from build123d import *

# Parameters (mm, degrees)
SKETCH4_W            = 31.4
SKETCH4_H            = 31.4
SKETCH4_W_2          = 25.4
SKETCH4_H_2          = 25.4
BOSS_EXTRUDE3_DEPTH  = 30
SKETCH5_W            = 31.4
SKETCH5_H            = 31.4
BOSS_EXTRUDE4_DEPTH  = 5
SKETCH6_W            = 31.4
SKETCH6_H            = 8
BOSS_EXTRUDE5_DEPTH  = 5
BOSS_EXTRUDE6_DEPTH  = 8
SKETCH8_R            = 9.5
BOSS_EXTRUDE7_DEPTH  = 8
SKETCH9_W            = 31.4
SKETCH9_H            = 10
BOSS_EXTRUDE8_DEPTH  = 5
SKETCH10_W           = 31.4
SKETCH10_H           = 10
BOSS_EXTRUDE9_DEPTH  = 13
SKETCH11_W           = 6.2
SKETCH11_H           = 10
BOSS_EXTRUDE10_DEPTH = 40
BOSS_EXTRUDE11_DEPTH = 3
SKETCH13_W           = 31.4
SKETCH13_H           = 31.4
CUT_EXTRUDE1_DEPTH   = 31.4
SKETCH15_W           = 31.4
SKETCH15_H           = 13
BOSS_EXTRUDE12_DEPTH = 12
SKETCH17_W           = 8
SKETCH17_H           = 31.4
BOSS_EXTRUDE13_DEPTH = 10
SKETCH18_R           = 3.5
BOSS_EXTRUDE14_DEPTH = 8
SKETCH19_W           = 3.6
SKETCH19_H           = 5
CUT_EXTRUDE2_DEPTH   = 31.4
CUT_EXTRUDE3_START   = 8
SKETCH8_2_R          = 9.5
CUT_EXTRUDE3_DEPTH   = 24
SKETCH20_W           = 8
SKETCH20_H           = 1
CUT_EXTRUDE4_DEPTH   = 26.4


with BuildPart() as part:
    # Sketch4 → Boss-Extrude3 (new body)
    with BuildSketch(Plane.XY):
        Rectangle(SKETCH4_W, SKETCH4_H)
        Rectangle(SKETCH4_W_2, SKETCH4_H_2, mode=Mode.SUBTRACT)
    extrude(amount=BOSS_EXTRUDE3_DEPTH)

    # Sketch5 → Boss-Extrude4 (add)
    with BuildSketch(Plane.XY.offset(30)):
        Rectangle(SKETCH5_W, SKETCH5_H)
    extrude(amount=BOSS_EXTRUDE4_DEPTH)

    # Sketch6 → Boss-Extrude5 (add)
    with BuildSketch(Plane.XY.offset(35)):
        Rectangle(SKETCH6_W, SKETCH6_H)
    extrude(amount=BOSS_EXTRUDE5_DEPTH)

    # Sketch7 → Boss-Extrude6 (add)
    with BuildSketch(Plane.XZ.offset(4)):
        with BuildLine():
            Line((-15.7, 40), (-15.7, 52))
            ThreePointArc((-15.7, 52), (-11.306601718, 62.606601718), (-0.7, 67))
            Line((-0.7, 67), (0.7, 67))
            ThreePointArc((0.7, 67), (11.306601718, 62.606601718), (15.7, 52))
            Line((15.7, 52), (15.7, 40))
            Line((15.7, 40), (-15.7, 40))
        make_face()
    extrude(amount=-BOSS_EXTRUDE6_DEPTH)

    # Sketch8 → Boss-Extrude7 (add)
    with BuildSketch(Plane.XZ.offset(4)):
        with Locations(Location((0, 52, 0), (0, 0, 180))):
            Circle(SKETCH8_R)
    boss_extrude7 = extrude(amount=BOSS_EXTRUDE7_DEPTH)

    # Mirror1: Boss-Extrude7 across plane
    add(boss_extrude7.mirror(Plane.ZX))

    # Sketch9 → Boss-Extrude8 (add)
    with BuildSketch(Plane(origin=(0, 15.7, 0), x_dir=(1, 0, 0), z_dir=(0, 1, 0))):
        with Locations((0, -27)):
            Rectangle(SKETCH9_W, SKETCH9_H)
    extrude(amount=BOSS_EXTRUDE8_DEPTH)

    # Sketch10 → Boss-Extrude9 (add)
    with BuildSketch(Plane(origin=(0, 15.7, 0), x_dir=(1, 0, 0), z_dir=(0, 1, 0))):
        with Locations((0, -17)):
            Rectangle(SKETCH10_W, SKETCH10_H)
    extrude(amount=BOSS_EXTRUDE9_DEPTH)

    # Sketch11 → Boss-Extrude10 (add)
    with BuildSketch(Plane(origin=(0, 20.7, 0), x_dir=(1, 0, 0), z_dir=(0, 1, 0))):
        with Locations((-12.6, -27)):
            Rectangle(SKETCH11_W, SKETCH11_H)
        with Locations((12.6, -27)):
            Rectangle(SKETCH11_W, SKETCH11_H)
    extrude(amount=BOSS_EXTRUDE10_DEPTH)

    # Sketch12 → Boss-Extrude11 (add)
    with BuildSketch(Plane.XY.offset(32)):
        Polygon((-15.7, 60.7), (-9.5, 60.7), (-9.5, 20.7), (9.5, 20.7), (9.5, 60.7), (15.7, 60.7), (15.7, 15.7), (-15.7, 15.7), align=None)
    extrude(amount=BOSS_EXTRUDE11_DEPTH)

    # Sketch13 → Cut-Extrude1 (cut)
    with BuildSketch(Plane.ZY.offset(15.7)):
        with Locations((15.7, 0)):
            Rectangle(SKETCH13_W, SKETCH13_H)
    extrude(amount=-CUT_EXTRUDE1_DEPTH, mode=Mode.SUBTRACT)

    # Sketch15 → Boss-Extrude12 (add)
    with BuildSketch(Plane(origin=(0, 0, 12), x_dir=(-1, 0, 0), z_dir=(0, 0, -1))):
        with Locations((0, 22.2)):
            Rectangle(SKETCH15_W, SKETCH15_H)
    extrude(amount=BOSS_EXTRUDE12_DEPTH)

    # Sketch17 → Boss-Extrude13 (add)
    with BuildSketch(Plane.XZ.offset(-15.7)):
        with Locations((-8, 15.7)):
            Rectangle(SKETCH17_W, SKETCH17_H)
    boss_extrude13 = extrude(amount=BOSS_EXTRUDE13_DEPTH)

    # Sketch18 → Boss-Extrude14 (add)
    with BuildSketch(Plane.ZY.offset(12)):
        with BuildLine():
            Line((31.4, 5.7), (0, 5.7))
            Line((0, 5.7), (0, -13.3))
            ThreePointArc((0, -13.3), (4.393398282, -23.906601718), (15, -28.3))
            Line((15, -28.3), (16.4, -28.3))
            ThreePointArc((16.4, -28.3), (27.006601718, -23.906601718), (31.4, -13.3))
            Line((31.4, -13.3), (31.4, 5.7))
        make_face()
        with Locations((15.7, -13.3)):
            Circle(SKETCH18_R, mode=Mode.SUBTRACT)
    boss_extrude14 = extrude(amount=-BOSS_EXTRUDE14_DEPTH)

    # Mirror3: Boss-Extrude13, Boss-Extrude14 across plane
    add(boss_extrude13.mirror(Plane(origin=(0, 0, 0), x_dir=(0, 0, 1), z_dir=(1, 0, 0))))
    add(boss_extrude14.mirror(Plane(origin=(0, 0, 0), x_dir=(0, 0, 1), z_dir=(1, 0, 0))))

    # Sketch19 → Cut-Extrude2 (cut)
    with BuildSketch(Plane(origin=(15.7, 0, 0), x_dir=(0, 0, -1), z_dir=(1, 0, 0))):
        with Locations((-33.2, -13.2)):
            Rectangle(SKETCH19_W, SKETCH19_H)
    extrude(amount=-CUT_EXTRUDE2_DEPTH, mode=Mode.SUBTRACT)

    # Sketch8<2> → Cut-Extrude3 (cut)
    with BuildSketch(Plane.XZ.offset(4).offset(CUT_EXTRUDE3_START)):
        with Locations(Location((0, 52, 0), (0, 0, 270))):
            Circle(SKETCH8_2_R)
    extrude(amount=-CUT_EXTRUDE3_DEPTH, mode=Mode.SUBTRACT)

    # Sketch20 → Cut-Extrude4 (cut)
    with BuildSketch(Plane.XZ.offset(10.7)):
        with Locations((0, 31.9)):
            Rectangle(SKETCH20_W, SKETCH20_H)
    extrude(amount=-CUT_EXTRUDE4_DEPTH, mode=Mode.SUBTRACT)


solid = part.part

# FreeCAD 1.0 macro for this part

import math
import FreeCAD as App
import Part
import Sketcher

V = App.Vector


def add_polygon(sketch, points):
    """Adds a closed chain of lines whose ends are joined by coincident constraints."""
    first, n = sketch.GeometryCount, len(points)
    for a, b in zip(points, points[1:] + points[:1]):
        sketch.addGeometry(Part.LineSegment(App.Vector(*a, 0), App.Vector(*b, 0)), False)
    for i in range(n):
        sketch.addConstraint(Sketcher.Constraint("Coincident", first + i, 2, first + (i + 1) % n, 1))

doc = App.newDocument("Part")
body = doc.addObject("PartDesign::Body", "Body")

# Sketch on XY plane
sketch1 = body.newObject("Sketcher::SketchObject", "Sketch")
sketch1.AttachmentSupport = (doc.getObject("XY_Plane"), [""])
sketch1.MapMode = "FlatFace"
add_polygon(sketch1, [(-15.7, 15.7), (-15.7, -15.7), (15.7, -15.7), (15.7, 15.7)])  # lines 0-3
add_polygon(sketch1, [(12.7, -12.7), (-12.7, -12.7), (-12.7, 12.7), (12.7, 12.7)])  # lines 4-7
sketch1.addConstraint(Sketcher.Constraint("Vertical", 0))
sketch1.addConstraint(Sketcher.Constraint("Horizontal", 1))
sketch1.addConstraint(Sketcher.Constraint("Vertical", 2))
sketch1.addConstraint(Sketcher.Constraint("Horizontal", 3))
sketch1.addConstraint(Sketcher.Constraint("Horizontal", 4))
sketch1.addConstraint(Sketcher.Constraint("Vertical", 5))
sketch1.addConstraint(Sketcher.Constraint("Horizontal", 6))
sketch1.addConstraint(Sketcher.Constraint("Vertical", 7))
sketch1.addConstraint(Sketcher.Constraint("Symmetric", 0, 2, 2, 2, -1, 1))
sketch1.addConstraint(Sketcher.Constraint("Symmetric", 4, 2, 6, 2, -1, 1))
sketch1.addConstraint(Sketcher.Constraint("Equal", 3, 0))
sketch1.addConstraint(Sketcher.Constraint("Equal", 6, 5))
sketch1.addConstraint(Sketcher.Constraint("DistanceX", 1, 1, 1, 2, 31.4))
sketch1.addConstraint(Sketcher.Constraint("DistanceX", 4, 2, 4, 1, 25.4))
pad1 = body.newObject("PartDesign::Pad", "Pad")
pad1.Profile = sketch1
pad1.Length = 30

# Sketch on XY plane
sketch2 = body.newObject("Sketcher::SketchObject", "Sketch001")
sketch2.AttachmentSupport = (doc.getObject("XY_Plane"), [""])
sketch2.MapMode = "FlatFace"
sketch2.AttachmentOffset = App.Placement(V(0, 0, 30), App.Rotation())
add_polygon(sketch2, [(-15.7, 15.7), (-15.7, -15.7), (15.7, -15.7), (15.7, 15.7)])  # lines 0-3
sketch2.addConstraint(Sketcher.Constraint("Vertical", 0))
sketch2.addConstraint(Sketcher.Constraint("Horizontal", 1))
sketch2.addConstraint(Sketcher.Constraint("Vertical", 2))
sketch2.addConstraint(Sketcher.Constraint("Horizontal", 3))
sketch2.addConstraint(Sketcher.Constraint("Symmetric", 0, 2, 2, 2, -1, 1))
sketch2.addConstraint(Sketcher.Constraint("Equal", 3, 0))
sketch2.addConstraint(Sketcher.Constraint("DistanceX", 1, 1, 1, 2, 31.4))
pad2 = body.newObject("PartDesign::Pad", "Pad001")
pad2.Profile = sketch2
pad2.Length = 5

# Sketch on XY plane
sketch3 = body.newObject("Sketcher::SketchObject", "Sketch002")
sketch3.AttachmentSupport = (doc.getObject("XY_Plane"), [""])
sketch3.MapMode = "FlatFace"
sketch3.AttachmentOffset = App.Placement(V(0, 0, 35), App.Rotation())
add_polygon(sketch3, [(-15.7, 4), (-15.7, -4), (15.7, -4), (15.7, 4)])  # lines 0-3
sketch3.addConstraint(Sketcher.Constraint("Vertical", 0))
sketch3.addConstraint(Sketcher.Constraint("Horizontal", 1))
sketch3.addConstraint(Sketcher.Constraint("Vertical", 2))
sketch3.addConstraint(Sketcher.Constraint("Horizontal", 3))
sketch3.addConstraint(Sketcher.Constraint("Symmetric", 0, 2, 2, 2, -1, 1))
sketch3.addConstraint(Sketcher.Constraint("DistanceY", 0, 2, 0, 1, 8.0))
sketch3.addConstraint(Sketcher.Constraint("DistanceX", 1, 1, 1, 2, 31.4))
pad3 = body.newObject("PartDesign::Pad", "Pad002")
pad3.Profile = sketch3
pad3.Length = 5

# Sketch on XZ plane
sketch4 = body.newObject("Sketcher::SketchObject", "Sketch003")
sketch4.AttachmentSupport = (doc.getObject("XZ_Plane"), [""])
sketch4.MapMode = "FlatFace"
sketch4.AttachmentOffset = App.Placement(V(0, 0, 4), App.Rotation())
sketch4.addGeometry(Part.LineSegment(V(-15.7, 52, 0), V(-15.7, 40, 0)), False)
sketch4.addGeometry(Part.LineSegment(V(-15.7, 40, 0), V(15.7, 40, 0)), False)
sketch4.addGeometry(Part.LineSegment(V(15.7, 40, 0), V(15.7, 52, 0)), False)
sketch4.addGeometry(Part.ArcOfCircle(Part.Circle(V(0.7, 52, 0), V(0, 0, 1), 15), math.radians(0), math.radians(90)), False)
sketch4.addGeometry(Part.LineSegment(V(0.7, 67, 0), V(-0.7, 67, 0)), False)
sketch4.addGeometry(Part.ArcOfCircle(Part.Circle(V(-0.7, 52, 0), V(0, 0, 1), 15), math.radians(90), math.radians(180)), False)
sketch4.addConstraint(Sketcher.Constraint("Coincident", 0, 2, 1, 1))
sketch4.addConstraint(Sketcher.Constraint("Coincident", 1, 2, 2, 1))
sketch4.addConstraint(Sketcher.Constraint("Tangent", 2, 2, 3, 1))
sketch4.addConstraint(Sketcher.Constraint("Tangent", 3, 2, 4, 1))
sketch4.addConstraint(Sketcher.Constraint("Tangent", 4, 2, 5, 1))
sketch4.addConstraint(Sketcher.Constraint("Tangent", 5, 2, 0, 1))
sketch4.addConstraint(Sketcher.Constraint("Vertical", 0))
sketch4.addConstraint(Sketcher.Constraint("Horizontal", 1))
sketch4.addConstraint(Sketcher.Constraint("Vertical", 2))
sketch4.addConstraint(Sketcher.Constraint("Horizontal", 4))
sketch4.addConstraint(Sketcher.Constraint("Equal", 3, 5))
sketch4.addConstraint(Sketcher.Constraint("Radius", 3, 15.0))
sketch4.addConstraint(Sketcher.Constraint("DistanceY", 0, 2, 0, 1, 12.0))
sketch4.addConstraint(Sketcher.Constraint("DistanceX", 1, 1, 1, 2, 31.4))
sketch4.addConstraint(Sketcher.Constraint("DistanceY", -1, 1, 3, 3, 52.0))
sketch4.addConstraint(Sketcher.Constraint("DistanceX", -1, 1, 3, 3, 0.7))
pad4 = body.newObject("PartDesign::Pad", "Pad003")
pad4.Profile = sketch4
pad4.Length = 8
pad4.Reversed = True

# Sketch on XZ plane
sketch5 = body.newObject("Sketcher::SketchObject", "Sketch004")
sketch5.AttachmentSupport = (doc.getObject("XZ_Plane"), [""])
sketch5.MapMode = "FlatFace"
sketch5.AttachmentOffset = App.Placement(V(0, 0, 4), App.Rotation())
sketch5.addGeometry(Part.Circle(V(0, 52, 0), V(0, 0, 1), 9.5), False)
sketch5.addConstraint(Sketcher.Constraint("PointOnObject", 0, 3, -2))
sketch5.addConstraint(Sketcher.Constraint("Diameter", 0, 19.0))
sketch5.addConstraint(Sketcher.Constraint("DistanceY", -1, 1, 0, 3, 52.0))
pad5 = body.newObject("PartDesign::Pad", "Pad004")
pad5.Profile = sketch5
pad5.Length = 8
doc.recompute()

mirrored = body.newObject("PartDesign::Mirrored", "Mirrored")
mirrored.Originals = [pad5]
mirrored.MirrorPlane = (doc.getObject("XZ_Plane"), [""])
body.Tip = mirrored

# Sketch on XZ plane
sketch6 = body.newObject("Sketcher::SketchObject", "Sketch005")
sketch6.AttachmentSupport = (doc.getObject("XZ_Plane"), [""])
sketch6.MapMode = "FlatFace"
sketch6.AttachmentOffset = App.Placement(V(0, 0, -15.7), App.Rotation())
add_polygon(sketch6, [(-15.7, 22), (-15.7, 32), (15.7, 32), (15.7, 22)])  # lines 0-3
sketch6.addConstraint(Sketcher.Constraint("Vertical", 0))
sketch6.addConstraint(Sketcher.Constraint("Horizontal", 1))
sketch6.addConstraint(Sketcher.Constraint("Vertical", 2))
sketch6.addConstraint(Sketcher.Constraint("Horizontal", 3))
sketch6.addConstraint(Sketcher.Constraint("DistanceY", 0, 1, 0, 2, 10.0))
sketch6.addConstraint(Sketcher.Constraint("DistanceX", 1, 1, 1, 2, 31.4))
sketch6.addConstraint(Sketcher.Constraint("DistanceY", -1, 1, 0, 2, 32.0))
sketch6.addConstraint(Sketcher.Constraint("DistanceX", 0, 2, -1, 1, 15.7))
pad6 = body.newObject("PartDesign::Pad", "Pad005")
pad6.Profile = sketch6
pad6.Length = 5
pad6.Reversed = True

# Sketch on XZ plane
sketch7 = body.newObject("Sketcher::SketchObject", "Sketch006")
sketch7.AttachmentSupport = (doc.getObject("XZ_Plane"), [""])
sketch7.MapMode = "FlatFace"
sketch7.AttachmentOffset = App.Placement(V(0, 0, -15.7), App.Rotation())
add_polygon(sketch7, [(-15.7, 12), (-15.7, 22), (15.7, 22), (15.7, 12)])  # lines 0-3
sketch7.addConstraint(Sketcher.Constraint("Vertical", 0))
sketch7.addConstraint(Sketcher.Constraint("Horizontal", 1))
sketch7.addConstraint(Sketcher.Constraint("Vertical", 2))
sketch7.addConstraint(Sketcher.Constraint("Horizontal", 3))
sketch7.addConstraint(Sketcher.Constraint("DistanceY", 0, 1, 0, 2, 10.0))
sketch7.addConstraint(Sketcher.Constraint("DistanceX", 1, 1, 1, 2, 31.4))
sketch7.addConstraint(Sketcher.Constraint("DistanceY", -1, 1, 0, 2, 22.0))
sketch7.addConstraint(Sketcher.Constraint("DistanceX", 0, 2, -1, 1, 15.7))
pad7 = body.newObject("PartDesign::Pad", "Pad006")
pad7.Profile = sketch7
pad7.Length = 13
pad7.Reversed = True

# Sketch on XZ plane
sketch8 = body.newObject("Sketcher::SketchObject", "Sketch007")
sketch8.AttachmentSupport = (doc.getObject("XZ_Plane"), [""])
sketch8.MapMode = "FlatFace"
sketch8.AttachmentOffset = App.Placement(V(0, 0, -20.7), App.Rotation())
add_polygon(sketch8, [(-15.7, 22), (-15.7, 32), (-9.5, 32), (-9.5, 22)])  # lines 0-3
add_polygon(sketch8, [(9.5, 22), (9.5, 32), (15.7, 32), (15.7, 22)])  # lines 4-7
sketch8.addConstraint(Sketcher.Constraint("Vertical", 0))
sketch8.addConstraint(Sketcher.Constraint("Horizontal", 1))
sketch8.addConstraint(Sketcher.Constraint("Vertical", 2))
sketch8.addConstraint(Sketcher.Constraint("Horizontal", 3))
sketch8.addConstraint(Sketcher.Constraint("Vertical", 4))
sketch8.addConstraint(Sketcher.Constraint("Horizontal", 5))
sketch8.addConstraint(Sketcher.Constraint("Vertical", 6))
sketch8.addConstraint(Sketcher.Constraint("Horizontal", 7))
sketch8.addConstraint(Sketcher.Constraint("Symmetric", 1, 2, 4, 2, -2))
sketch8.addConstraint(Sketcher.Constraint("Symmetric", 3, 2, 6, 2, -2))
sketch8.addConstraint(Sketcher.Constraint("DistanceY", 0, 1, 0, 2, 10.0))
sketch8.addConstraint(Sketcher.Constraint("DistanceX", 1, 1, 1, 2, 6.2))
sketch8.addConstraint(Sketcher.Constraint("DistanceY", -1, 1, 0, 2, 32.0))
sketch8.addConstraint(Sketcher.Constraint("DistanceX", 1, 2, 4, 2, 19.0))
pad8 = body.newObject("PartDesign::Pad", "Pad007")
pad8.Profile = sketch8
pad8.Length = 40
pad8.Reversed = True

# Sketch on XY plane
sketch9 = body.newObject("Sketcher::SketchObject", "Sketch008")
sketch9.AttachmentSupport = (doc.getObject("XY_Plane"), [""])
sketch9.MapMode = "FlatFace"
sketch9.AttachmentOffset = App.Placement(V(0, 0, 32), App.Rotation())
add_polygon(sketch9, [(-9.5, 60.7), (-15.7, 60.7), (-15.7, 15.7), (15.7, 15.7), (15.7, 60.7), (9.5, 60.7), (9.5, 20.7), (-9.5, 20.7)])  # lines 0-7
sketch9.addConstraint(Sketcher.Constraint("Horizontal", 0))
sketch9.addConstraint(Sketcher.Constraint("Vertical", 1))
sketch9.addConstraint(Sketcher.Constraint("Horizontal", 2))
sketch9.addConstraint(Sketcher.Constraint("Vertical", 3))
sketch9.addConstraint(Sketcher.Constraint("Horizontal", 4))
sketch9.addConstraint(Sketcher.Constraint("Vertical", 5))
sketch9.addConstraint(Sketcher.Constraint("Horizontal", 6))
sketch9.addConstraint(Sketcher.Constraint("Vertical", 7))
sketch9.addConstraint(Sketcher.Constraint("Symmetric", 0, 2, 3, 2, -2))
sketch9.addConstraint(Sketcher.Constraint("Equal", 0, 4))
sketch9.addConstraint(Sketcher.Constraint("DistanceX", 6, 2, 6, 1, 19.0))
sketch9.addConstraint(Sketcher.Constraint("DistanceY", 1, 2, 1, 1, 45.0))
sketch9.addConstraint(Sketcher.Constraint("DistanceY", 5, 2, 5, 1, 40.0))
sketch9.addConstraint(Sketcher.Constraint("DistanceX", 0, 2, 0, 1, 6.2))
sketch9.addConstraint(Sketcher.Constraint("DistanceY", -1, 1, 0, 2, 60.7))
pad9 = body.newObject("PartDesign::Pad", "Pad008")
pad9.Profile = sketch9
pad9.Length = 3

# Sketch on YZ plane
sketch10 = body.newObject("Sketcher::SketchObject", "Sketch009")
sketch10.AttachmentSupport = (doc.getObject("YZ_Plane"), [""])
sketch10.MapMode = "FlatFace"
sketch10.AttachmentOffset = App.Placement(V(0, 0, -15.7), App.Rotation())
add_polygon(sketch10, [(15.7, 0), (-15.7, 0), (-15.7, 31.4), (15.7, 31.4)])  # lines 0-3
sketch10.addConstraint(Sketcher.Constraint("Horizontal", 0))
sketch10.addConstraint(Sketcher.Constraint("Vertical", 1))
sketch10.addConstraint(Sketcher.Constraint("Horizontal", 2))
sketch10.addConstraint(Sketcher.Constraint("Vertical", 3))
sketch10.addConstraint(Sketcher.Constraint("Symmetric", 0, 2, 3, 2, -1, 1))
sketch10.addConstraint(Sketcher.Constraint("Equal", 2, 1))
sketch10.addConstraint(Sketcher.Constraint("DistanceX", 0, 2, 0, 1, 31.4))
pocket1 = body.newObject("PartDesign::Pocket", "Pocket")
pocket1.Profile = sketch10
pocket1.Length = 31.4
pocket1.Reversed = True

# Sketch on XY plane
sketch11 = body.newObject("Sketcher::SketchObject", "Sketch010")
sketch11.AttachmentSupport = (doc.getObject("XY_Plane"), [""])
sketch11.MapMode = "FlatFace"
sketch11.AttachmentOffset = App.Placement(V(0, 0, 12), App.Rotation())
add_polygon(sketch11, [(15.7, 28.7), (15.7, 15.7), (-15.7, 15.7), (-15.7, 28.7)])  # lines 0-3
sketch11.addConstraint(Sketcher.Constraint("Vertical", 0))
sketch11.addConstraint(Sketcher.Constraint("Horizontal", 1))
sketch11.addConstraint(Sketcher.Constraint("Vertical", 2))
sketch11.addConstraint(Sketcher.Constraint("Horizontal", 3))
sketch11.addConstraint(Sketcher.Constraint("DistanceY", 0, 2, 0, 1, 13.0))
sketch11.addConstraint(Sketcher.Constraint("DistanceX", 1, 2, 1, 1, 31.4))
sketch11.addConstraint(Sketcher.Constraint("DistanceX", -1, 1, 0, 2, 15.7))
sketch11.addConstraint(Sketcher.Constraint("DistanceY", -1, 1, 0, 2, 15.7))
pad10 = body.newObject("PartDesign::Pad", "Pad009")
pad10.Profile = sketch11
pad10.Length = 12
pad10.Reversed = True

# Sketch on XZ plane
sketch12 = body.newObject("Sketcher::SketchObject", "Sketch011")
sketch12.AttachmentSupport = (doc.getObject("XZ_Plane"), [""])
sketch12.MapMode = "FlatFace"
sketch12.AttachmentOffset = App.Placement(V(0, 0, -15.7), App.Rotation())
add_polygon(sketch12, [(-12, 31.4), (-12, 0), (-4, 0), (-4, 31.4)])  # lines 0-3
sketch12.addConstraint(Sketcher.Constraint("Vertical", 0))
sketch12.addConstraint(Sketcher.Constraint("Horizontal", 1))
sketch12.addConstraint(Sketcher.Constraint("Vertical", 2))
sketch12.addConstraint(Sketcher.Constraint("Horizontal", 3))
sketch12.addConstraint(Sketcher.Constraint("PointOnObject", 0, 2, -1))
sketch12.addConstraint(Sketcher.Constraint("DistanceX", 1, 1, 1, 2, 8.0))
sketch12.addConstraint(Sketcher.Constraint("DistanceY", 0, 2, 0, 1, 31.4))
sketch12.addConstraint(Sketcher.Constraint("DistanceX", 0, 2, -1, 1, 12.0))
pad11 = body.newObject("PartDesign::Pad", "Pad010")
pad11.Profile = sketch12
pad11.Length = 10

# Sketch on YZ plane
sketch13 = body.newObject("Sketcher::SketchObject", "Sketch012")
sketch13.AttachmentSupport = (doc.getObject("YZ_Plane"), [""])
sketch13.MapMode = "FlatFace"
sketch13.AttachmentOffset = App.Placement(V(0, 0, -12), App.Rotation())
sketch13.addGeometry(Part.LineSegment(V(5.7, 31.4, 0), V(5.7, 0, 0)), False)
sketch13.addGeometry(Part.LineSegment(V(5.7, 0, 0), V(-13.3, 0, 0)), False)
sketch13.addGeometry(Part.ArcOfCircle(Part.Circle(V(-13.3, 15, 0), V(0, 0, 1), 15), math.radians(180), math.radians(270)), False)
sketch13.addGeometry(Part.LineSegment(V(-28.3, 15, 0), V(-28.3, 16.4, 0)), False)
sketch13.addGeometry(Part.ArcOfCircle(Part.Circle(V(-13.3, 16.4, 0), V(0, 0, 1), 15), math.radians(90), math.radians(180)), False)
sketch13.addGeometry(Part.LineSegment(V(-13.3, 31.4, 0), V(5.7, 31.4, 0)), False)
sketch13.addGeometry(Part.Circle(V(-13.3, 15.7, 0), V(0, 0, 1), 3.5), False)
sketch13.addConstraint(Sketcher.Constraint("Coincident", 0, 2, 1, 1))
sketch13.addConstraint(Sketcher.Constraint("Tangent", 1, 2, 2, 2))
sketch13.addConstraint(Sketcher.Constraint("Tangent", 2, 1, 3, 1))
sketch13.addConstraint(Sketcher.Constraint("Tangent", 3, 2, 4, 2))
sketch13.addConstraint(Sketcher.Constraint("Tangent", 4, 1, 5, 1))
sketch13.addConstraint(Sketcher.Constraint("Coincident", 5, 2, 0, 1))
sketch13.addConstraint(Sketcher.Constraint("Vertical", 0))
sketch13.addConstraint(Sketcher.Constraint("Horizontal", 1))
sketch13.addConstraint(Sketcher.Constraint("Vertical", 3))
sketch13.addConstraint(Sketcher.Constraint("Horizontal", 5))
sketch13.addConstraint(Sketcher.Constraint("Equal", 2, 4))
sketch13.addConstraint(Sketcher.Constraint("PointOnObject", 0, 2, -1))
sketch13.addConstraint(Sketcher.Constraint("Vertical", 4, 3, 6, 3))
sketch13.addConstraint(Sketcher.Constraint("Diameter", 6, 7.0))
sketch13.addConstraint(Sketcher.Constraint("Radius", 2, 15.0))
sketch13.addConstraint(Sketcher.Constraint("DistanceX", 1, 2, 1, 1, 19.0))
sketch13.addConstraint(Sketcher.Constraint("DistanceY", 0, 2, 0, 1, 31.4))
sketch13.addConstraint(Sketcher.Constraint("DistanceX", 2, 3, -1, 1, 13.3))
sketch13.addConstraint(Sketcher.Constraint("DistanceY", -1, 1, 6, 3, 15.7))
pad12 = body.newObject("PartDesign::Pad", "Pad011")
pad12.Profile = sketch13
pad12.Length = 8
doc.recompute()

mirrored2 = body.newObject("PartDesign::Mirrored", "Mirrored001")
mirrored2.Originals = [pad11, pad12]
mirrored2.MirrorPlane = (doc.getObject("YZ_Plane"), [""])
body.Tip = mirrored2

# Sketch on YZ plane
sketch14 = body.newObject("Sketcher::SketchObject", "Sketch013")
sketch14.AttachmentSupport = (doc.getObject("YZ_Plane"), [""])
sketch14.MapMode = "FlatFace"
sketch14.AttachmentOffset = App.Placement(V(0, 0, 15.7), App.Rotation())
add_polygon(sketch14, [(-10.7, 35), (-15.7, 35), (-15.7, 31.4), (-10.7, 31.4)])  # lines 0-3
sketch14.addConstraint(Sketcher.Constraint("Horizontal", 0))
sketch14.addConstraint(Sketcher.Constraint("Vertical", 1))
sketch14.addConstraint(Sketcher.Constraint("Horizontal", 2))
sketch14.addConstraint(Sketcher.Constraint("Vertical", 3))
sketch14.addConstraint(Sketcher.Constraint("DistanceX", 0, 2, 0, 1, 5.0))
sketch14.addConstraint(Sketcher.Constraint("DistanceY", 1, 2, 1, 1, 3.6))
sketch14.addConstraint(Sketcher.Constraint("DistanceY", -1, 1, 0, 2, 35.0))
sketch14.addConstraint(Sketcher.Constraint("DistanceX", 0, 2, -1, 1, 15.7))
pocket2 = body.newObject("PartDesign::Pocket", "Pocket001")
pocket2.Profile = sketch14
pocket2.Length = 31.4

# Sketch on XZ plane
sketch15 = body.newObject("Sketcher::SketchObject", "Sketch014")
sketch15.AttachmentSupport = (doc.getObject("XZ_Plane"), [""])
sketch15.MapMode = "FlatFace"
sketch15.AttachmentOffset = App.Placement(V(0, 0, 12), App.Rotation())
sketch15.addGeometry(Part.Circle(V(0, 52, 0), V(0, 0, 1), 9.5), False)
sketch15.addConstraint(Sketcher.Constraint("PointOnObject", 0, 3, -2))
sketch15.addConstraint(Sketcher.Constraint("Diameter", 0, 19.0))
sketch15.addConstraint(Sketcher.Constraint("DistanceY", -1, 1, 0, 3, 52.0))
pocket3 = body.newObject("PartDesign::Pocket", "Pocket002")
pocket3.Profile = sketch15
pocket3.Length = 24

# Sketch on XZ plane
sketch16 = body.newObject("Sketcher::SketchObject", "Sketch015")
sketch16.AttachmentSupport = (doc.getObject("XZ_Plane"), [""])
sketch16.MapMode = "FlatFace"
sketch16.AttachmentOffset = App.Placement(V(0, 0, 10.7), App.Rotation())
add_polygon(sketch16, [(-4, 32.4), (-4, 31.4), (4, 31.4), (4, 32.4)])  # lines 0-3
sketch16.addConstraint(Sketcher.Constraint("Vertical", 0))
sketch16.addConstraint(Sketcher.Constraint("Horizontal", 1))
sketch16.addConstraint(Sketcher.Constraint("Vertical", 2))
sketch16.addConstraint(Sketcher.Constraint("Horizontal", 3))
sketch16.addConstraint(Sketcher.Constraint("DistanceX", 1, 1, 1, 2, 8.0))
sketch16.addConstraint(Sketcher.Constraint("DistanceY", 0, 2, 0, 1, 1.0))
sketch16.addConstraint(Sketcher.Constraint("DistanceX", 0, 2, -1, 1, 4.0))
sketch16.addConstraint(Sketcher.Constraint("DistanceY", -1, 1, 0, 2, 31.4))
pocket4 = body.newObject("PartDesign::Pocket", "Pocket003")
pocket4.Profile = sketch16
pocket4.Length = 26.4

doc.recompute()
